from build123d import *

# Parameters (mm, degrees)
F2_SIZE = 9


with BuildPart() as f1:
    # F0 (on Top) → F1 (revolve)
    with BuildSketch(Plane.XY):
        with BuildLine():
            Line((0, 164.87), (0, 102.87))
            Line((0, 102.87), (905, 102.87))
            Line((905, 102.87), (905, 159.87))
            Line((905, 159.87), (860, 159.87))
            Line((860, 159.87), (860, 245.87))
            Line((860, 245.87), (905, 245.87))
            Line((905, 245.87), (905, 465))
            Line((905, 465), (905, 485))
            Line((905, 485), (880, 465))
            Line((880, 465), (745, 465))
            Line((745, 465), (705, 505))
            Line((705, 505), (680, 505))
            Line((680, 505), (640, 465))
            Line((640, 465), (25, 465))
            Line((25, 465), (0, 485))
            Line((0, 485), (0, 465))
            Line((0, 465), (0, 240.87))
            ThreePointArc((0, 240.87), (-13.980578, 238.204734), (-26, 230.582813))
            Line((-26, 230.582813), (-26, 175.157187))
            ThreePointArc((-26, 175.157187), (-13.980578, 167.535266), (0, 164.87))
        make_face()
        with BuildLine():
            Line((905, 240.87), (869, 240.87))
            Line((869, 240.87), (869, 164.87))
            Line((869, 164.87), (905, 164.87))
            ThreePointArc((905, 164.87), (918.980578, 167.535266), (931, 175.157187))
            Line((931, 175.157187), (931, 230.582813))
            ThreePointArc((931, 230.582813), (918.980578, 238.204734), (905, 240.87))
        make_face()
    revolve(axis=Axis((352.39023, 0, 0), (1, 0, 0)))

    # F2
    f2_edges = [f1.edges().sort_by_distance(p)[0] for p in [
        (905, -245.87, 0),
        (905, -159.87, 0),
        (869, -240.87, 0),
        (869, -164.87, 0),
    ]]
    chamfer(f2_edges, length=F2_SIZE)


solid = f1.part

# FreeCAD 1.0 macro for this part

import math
import FreeCAD as App
import Part
import Sketcher

V = App.Vector


def edges_at(feature, points):
    """Names of the edges that pass closest to the given points."""
    edges = feature.Shape.Edges
    near = lambda p: min(range(len(edges)), key=lambda i: edges[i].distToShape(Part.Vertex(*p))[0])
    return sorted({f"Edge{near(p) + 1}" for p in points})

doc = App.newDocument("Part")
body = doc.addObject("PartDesign::Body", "Body")
body.AllowCompound = True

# Sketch on XY plane
sketch1 = body.newObject("Sketcher::SketchObject", "Sketch")
sketch1.AttachmentSupport = (doc.getObject("XY_Plane"), [""])
sketch1.MapMode = "FlatFace"
sketch1.addGeometry([
    Part.LineSegment(V(0, 165, 0), V(0, 103, 0)),  # 0
    Part.LineSegment(V(0, 103, 0), V(905, 103, 0)),  # 1
    Part.LineSegment(V(905, 103, 0), V(905, 160, 0)),  # 2
    Part.LineSegment(V(905, 160, 0), V(860, 160, 0)),  # 3
    Part.LineSegment(V(860, 160, 0), V(860, 246, 0)),  # 4
    Part.LineSegment(V(860, 246, 0), V(905, 246, 0)),  # 5
    Part.LineSegment(V(905, 246, 0), V(905, 485, 0)),  # 6
    Part.LineSegment(V(905, 485, 0), V(880, 465, 0)),  # 7
    Part.LineSegment(V(880, 465, 0), V(745, 465, 0)),  # 8
    Part.LineSegment(V(745, 465, 0), V(705, 505, 0)),  # 9
    Part.LineSegment(V(705, 505, 0), V(680, 505, 0)),  # 10
    Part.LineSegment(V(680, 505, 0), V(640, 465, 0)),  # 11
    Part.LineSegment(V(640, 465, 0), V(25, 465, 0)),  # 12
    Part.LineSegment(V(25, 465, 0), V(0, 485, 0)),  # 13
    Part.LineSegment(V(0, 485, 0), V(0, 241, 0)),  # 14
    Part.ArcOfCircle(Part.Circle(V(0, 203, 0), V(0, 0, 1), 38), math.radians(90), math.radians(133)),  # 15
    Part.LineSegment(V(-26, 231, 0), V(-26, 175, 0)),  # 16
    Part.ArcOfCircle(Part.Circle(V(0, 203, 0), V(0, 0, 1), 38), math.radians(-133), math.radians(-90)),  # 17
    Part.LineSegment(V(905, 241, 0), V(869, 241, 0)),  # 18
    Part.LineSegment(V(869, 241, 0), V(869, 165, 0)),  # 19
    Part.LineSegment(V(869, 165, 0), V(905, 165, 0)),  # 20
    Part.ArcOfCircle(Part.Circle(V(905, 203, 0), V(0, 0, 1), 38), math.radians(-90), math.radians(-47)),  # 21
    Part.LineSegment(V(931, 175, 0), V(931, 231, 0)),  # 22
    Part.ArcOfCircle(Part.Circle(V(905, 203, 0), V(0, 0, 1), 38), math.radians(47), math.radians(90)),  # 23
], False)
sketch1.addConstraint([
    Sketcher.Constraint("Coincident", 0, 2, 1, 1),
    Sketcher.Constraint("Coincident", 1, 2, 2, 1),
    Sketcher.Constraint("Coincident", 2, 2, 3, 1),
    Sketcher.Constraint("Coincident", 3, 2, 4, 1),
    Sketcher.Constraint("Coincident", 4, 2, 5, 1),
    Sketcher.Constraint("Coincident", 5, 2, 6, 1),
    Sketcher.Constraint("Coincident", 6, 2, 7, 1),
    Sketcher.Constraint("Coincident", 7, 2, 8, 1),
    Sketcher.Constraint("Coincident", 8, 2, 9, 1),
    Sketcher.Constraint("Coincident", 9, 2, 10, 1),
    Sketcher.Constraint("Coincident", 10, 2, 11, 1),
    Sketcher.Constraint("Coincident", 11, 2, 12, 1),
    Sketcher.Constraint("Coincident", 12, 2, 13, 1),
    Sketcher.Constraint("Coincident", 13, 2, 14, 1),
    Sketcher.Constraint("Coincident", 14, 2, 15, 1),
    Sketcher.Constraint("Coincident", 15, 2, 16, 1),
    Sketcher.Constraint("Coincident", 16, 2, 17, 1),
    Sketcher.Constraint("Coincident", 17, 2, 0, 1),
    Sketcher.Constraint("Coincident", 18, 2, 19, 1),
    Sketcher.Constraint("Coincident", 19, 2, 20, 1),
    Sketcher.Constraint("Tangent", 20, 2, 21, 1),
    Sketcher.Constraint("Coincident", 21, 2, 22, 1),
    Sketcher.Constraint("Coincident", 22, 2, 23, 1),
    Sketcher.Constraint("Tangent", 23, 2, 18, 1),
    Sketcher.Constraint("Vertical", 0),
    Sketcher.Constraint("Horizontal", 1),
    Sketcher.Constraint("Vertical", 2),
    Sketcher.Constraint("Horizontal", 3),
    Sketcher.Constraint("Vertical", 4),
    Sketcher.Constraint("Horizontal", 5),
    Sketcher.Constraint("Vertical", 6),
    Sketcher.Constraint("Horizontal", 8),
    Sketcher.Constraint("Horizontal", 10),
    Sketcher.Constraint("Horizontal", 12),
    Sketcher.Constraint("Vertical", 14),
    Sketcher.Constraint("Vertical", 16),
    Sketcher.Constraint("Horizontal", 18),
    Sketcher.Constraint("Vertical", 19),
    Sketcher.Constraint("Horizontal", 20),
    Sketcher.Constraint("Vertical", 22),
    Sketcher.Constraint("Coincident", 17, 3, 15, 3),
    Sketcher.Constraint("Coincident", 23, 3, 21, 3),
    Sketcher.Constraint("Equal", 15, 17),
    Sketcher.Constraint("Equal", 17, 21),
    Sketcher.Constraint("Equal", 21, 23),
    Sketcher.Constraint("PointOnObject", 15, 3, -2),
    Sketcher.Constraint("PointOnObject", 0, 2, -2),
    Sketcher.Constraint("PointOnObject", 13, 2, -2),
    Sketcher.Constraint("Perpendicular", 9, 11),
    Sketcher.Constraint("Horizontal", 17, 3, 21, 3),
    Sketcher.Constraint("Horizontal", 8, 2, 11, 2),
    Sketcher.Constraint("Horizontal", 6, 2, 13, 2),
    Sketcher.Constraint("Horizontal", 16, 2, 21, 2),
    Sketcher.Constraint("Vertical", 23, 3, 1, 2),
    Sketcher.Constraint("Vertical", 2, 2, 5, 2),
    Sketcher.Constraint("Equal", 9, 11),
    Sketcher.Constraint("Equal", 7, 13),
    Sketcher.Constraint("DistanceX", 1, 1, 1, 2, 905.0),
    Sketcher.Constraint("DistanceX", 3, 2, 3, 1, 45.0),
    Sketcher.Constraint("DistanceX", 8, 2, 8, 1, 135.0),
    Sketcher.Constraint("DistanceX", 10, 2, 10, 1, 25.0),
    Sketcher.Constraint("DistanceX", 12, 2, 12, 1, 615.0),
    Sketcher.Constraint("DistanceX", 18, 2, 18, 1, 36.0),
    Sketcher.Constraint("DistanceY", 0, 2, 0, 1, 62.0),
    Sketcher.Constraint("DistanceY", 2, 1, 2, 2, 57.0),
    Sketcher.Constraint("DistanceY", 4, 1, 4, 2, 86.0),
    Sketcher.Constraint("DistanceY", 19, 2, 19, 1, 76.0),
    Sketcher.Constraint("DistanceY", -1, 1, 6, 2, 485.0),
    Sketcher.Constraint("DistanceX", -1, 1, 7, 2, 880.0),
    Sketcher.Constraint("DistanceY", -1, 1, 7, 2, 465.0),
    Sketcher.Constraint("DistanceX", 15, 2, -1, 1, 26.0),
    Sketcher.Constraint("DistanceY", 6, 1, 6, 2, 239.13),
])
revolution = body.newObject("PartDesign::Revolution", "Revolution")
revolution.Profile = sketch1
revolution.ReferenceAxis = (sketch1, ["H_Axis"])
revolution.Angle = 360
doc.recompute()

chamfer = body.newObject("PartDesign::Chamfer", "Chamfer")
chamfer.Base = (revolution, edges_at(revolution, [
    (905, -245.87, 0),
    (905, -159.87, 0),
    (869, -240.87, 0),
    (869, -164.87, 0),
]))
chamfer.Size = 9

doc.recompute()
